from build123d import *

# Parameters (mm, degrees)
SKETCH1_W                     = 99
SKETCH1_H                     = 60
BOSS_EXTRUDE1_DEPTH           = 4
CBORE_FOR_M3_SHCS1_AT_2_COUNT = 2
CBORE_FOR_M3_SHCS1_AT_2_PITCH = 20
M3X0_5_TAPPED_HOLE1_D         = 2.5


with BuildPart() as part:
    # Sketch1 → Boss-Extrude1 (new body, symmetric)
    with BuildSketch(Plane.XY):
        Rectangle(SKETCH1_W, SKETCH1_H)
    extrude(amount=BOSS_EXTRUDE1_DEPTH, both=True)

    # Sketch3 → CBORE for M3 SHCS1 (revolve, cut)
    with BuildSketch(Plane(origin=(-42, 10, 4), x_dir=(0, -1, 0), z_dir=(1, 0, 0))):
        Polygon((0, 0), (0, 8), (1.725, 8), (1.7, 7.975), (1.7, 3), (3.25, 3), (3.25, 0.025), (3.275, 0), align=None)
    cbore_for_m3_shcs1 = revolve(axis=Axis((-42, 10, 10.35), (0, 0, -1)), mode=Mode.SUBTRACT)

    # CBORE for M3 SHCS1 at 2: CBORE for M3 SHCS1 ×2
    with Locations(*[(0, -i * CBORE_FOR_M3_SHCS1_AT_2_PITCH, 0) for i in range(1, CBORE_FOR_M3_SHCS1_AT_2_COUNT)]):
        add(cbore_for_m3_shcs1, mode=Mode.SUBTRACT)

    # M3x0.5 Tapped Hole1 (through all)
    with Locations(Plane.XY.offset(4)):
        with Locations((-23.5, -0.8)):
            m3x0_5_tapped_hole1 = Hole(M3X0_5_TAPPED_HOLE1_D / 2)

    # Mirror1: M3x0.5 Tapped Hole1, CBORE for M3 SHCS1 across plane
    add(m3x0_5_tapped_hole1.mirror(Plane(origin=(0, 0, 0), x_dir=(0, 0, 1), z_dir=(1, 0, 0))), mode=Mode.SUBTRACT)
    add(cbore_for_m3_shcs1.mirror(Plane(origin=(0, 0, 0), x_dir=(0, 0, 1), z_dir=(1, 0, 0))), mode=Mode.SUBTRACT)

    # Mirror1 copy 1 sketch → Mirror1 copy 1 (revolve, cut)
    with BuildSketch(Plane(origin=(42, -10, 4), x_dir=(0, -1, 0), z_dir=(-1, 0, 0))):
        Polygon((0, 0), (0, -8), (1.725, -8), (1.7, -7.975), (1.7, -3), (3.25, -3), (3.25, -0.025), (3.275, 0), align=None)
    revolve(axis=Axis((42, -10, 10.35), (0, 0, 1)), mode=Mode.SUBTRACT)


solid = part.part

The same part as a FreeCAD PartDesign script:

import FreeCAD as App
import Part
import Sketcher
from FreeCAD import Vector
Q = App.Units.Quantity

doc = App.newDocument("Part")
body = doc.addObject("PartDesign::Body", "Body")

# Sketch on XY plane
sketch1 = doc.addObject("Sketcher::SketchObject", "Sketch")
body.addObject(sketch1)
sketch1.AttachmentSupport = (doc.XY_Plane, [""])
sketch1.MapMode = "FlatFace"
sketch1.addGeometry([
    Part.LineSegment(Vector(-49.5, 30, 0), Vector(-49.5, -30, 0)),
    Part.LineSegment(Vector(-49.5, -30, 0), Vector(49.5, -30, 0)),
    Part.LineSegment(Vector(49.5, -30, 0), Vector(49.5, 30, 0)),
    Part.LineSegment(Vector(49.5, 30, 0), Vector(-49.5, 30, 0)),
], False)
sketch1.addConstraint([
    Sketcher.Constraint("Coincident", 0, 2, 1, 1),
    Sketcher.Constraint("Coincident", 1, 2, 2, 1),
    Sketcher.Constraint("Coincident", 2, 2, 3, 1),
    Sketcher.Constraint("Coincident", 3, 2, 0, 1),
    Sketcher.Constraint("Vertical", 0),
    Sketcher.Constraint("Horizontal", 1),
    Sketcher.Constraint("Vertical", 2),
    Sketcher.Constraint("Horizontal", 3),
    Sketcher.Constraint("Symmetric", 0, 2, 2, 2, -1, 1),
    Sketcher.Constraint("DistanceX", 1, 1, 1, 2, 99.0),
    Sketcher.Constraint("DistanceY", 0, 2, 0, 1, 60.0),
])
pad1 = doc.addObject("PartDesign::Pad", "Pad")
body.addObject(pad1)
pad1.Profile = sketch1
pad1.Length = 8
pad1.Midplane = True

# Sketch on YZ plane
sketch2 = doc.addObject("Sketcher::SketchObject", "Sketch001")
body.addObject(sketch2)
sketch2.AttachmentSupport = (doc.YZ_Plane, [""])
sketch2.MapMode = "FlatFace"
sketch2.AttachmentOffset = App.Placement(Vector(0, 0, -42), App.Rotation())
sketch2.addGeometry([
    Part.LineSegment(Vector(10, -4, 0), Vector(10, 4, 0)),  # 0
    Part.LineSegment(Vector(10, 4, 0), Vector(6.725, 4, 0)),  # 1
    Part.LineSegment(Vector(6.725, 4, 0), Vector(6.75, 3.975, 0)),  # 2
    Part.LineSegment(Vector(6.75, 3.975, 0), Vector(6.75, 1, 0)),  # 3
    Part.LineSegment(Vector(6.75, 1, 0), Vector(8.3, 1, 0)),  # 4
    Part.LineSegment(Vector(8.3, 1, 0), Vector(8.3, -3.975, 0)),  # 5
    Part.LineSegment(Vector(8.3, -3.975, 0), Vector(8.275, -4, 0)),  # 6
    Part.LineSegment(Vector(8.275, -4, 0), Vector(10, -4, 0)),  # 7
], False)
sketch2.addGeometry(Part.LineSegment(Vector(10, 4, 0), Vector(10, -4, 0)), True)  # axis
sketch2.addConstraint([
    Sketcher.Constraint("Coincident", 0, 2, 1, 1),
    Sketcher.Constraint("Coincident", 1, 2, 2, 1),
    Sketcher.Constraint("Coincident", 2, 2, 3, 1),
    Sketcher.Constraint("Coincident", 3, 2, 4, 1),
    Sketcher.Constraint("Coincident", 4, 2, 5, 1),
    Sketcher.Constraint("Coincident", 5, 2, 6, 1),
    Sketcher.Constraint("Coincident", 6, 2, 7, 1),
    Sketcher.Constraint("Coincident", 7, 2, 0, 1),
    Sketcher.Constraint("Vertical", 0),
    Sketcher.Constraint("Horizontal", 1),
    Sketcher.Constraint("Vertical", 3),
    Sketcher.Constraint("Horizontal", 4),
    Sketcher.Constraint("Vertical", 5),
    Sketcher.Constraint("Horizontal", 7),
    Sketcher.Constraint("Vertical", 8),
    Sketcher.Constraint("Coincident", 8, 1, 0, 2),
    Sketcher.Constraint("Perpendicular", 2, 6),
    Sketcher.Constraint("Horizontal", 6, 2, 8, 2),
    Sketcher.Constraint("Equal", 2, 6),
    Sketcher.Constraint("DistanceY", 0, 1, 0, 2, 8.0),
    Sketcher.Constraint("Angle", 2, Q("-45 deg")),
    Sketcher.Constraint("DistanceX", -1, 1, 0, 2, 10.0),
    Sketcher.Constraint("DistanceY", -1, 1, 0, 2, 4.0),
    Sketcher.Constraint("DistanceY", -1, 1, 3, 2, 1.0),
    Sketcher.Constraint("DistanceX", 4, 1, 4, 2, 1.55),
    Sketcher.Constraint("DistanceX", -1, 1, 4, 2, 8.3),
    Sketcher.Constraint("DistanceX", 1, 2, 1, 1, 3.275),
])
groove = doc.addObject("PartDesign::Groove", "Groove")
body.addObject(groove)
groove.Profile = sketch2
groove.ReferenceAxis = (sketch2, ["Axis0"])
groove.Angle = 360
doc.recompute()

linearpattern = doc.addObject("PartDesign::LinearPattern", "LinearPattern")
body.addObject(linearpattern)
linearpattern.Originals = [groove]
linearpattern.Direction = (doc.Y_Axis, [""])
linearpattern.Mode = "offset"
linearpattern.Offset = 20
linearpattern.Occurrences = 2
linearpattern.Reversed = True
body.Tip = linearpattern

# Sketch on XY plane
sketch3 = doc.addObject("Sketcher::SketchObject", "Sketch002")
body.addObject(sketch3)
sketch3.AttachmentSupport = (doc.XY_Plane, [""])
sketch3.MapMode = "FlatFace"
sketch3.AttachmentOffset = App.Placement(Vector(0, 0, 4), App.Rotation())
sketch3.addGeometry(Part.Circle(Vector(-23.5, -0.8, 0), Vector(0, 0, 1), 1.25), False)
sketch3.addConstraint([
    Sketcher.Constraint("Diameter", 0, 2.5),
    Sketcher.Constraint("DistanceX", 0, 3, -1, 1, 23.5),
    Sketcher.Constraint("DistanceY", 0, 3, -1, 1, 0.8),
])
doc.recompute()
hole = doc.addObject("PartDesign::Hole", "Hole")
body.addObject(hole)
hole.Profile = sketch3
hole.ThreadType = "None"
hole.Diameter = 2.5
hole.DepthType = "ThroughAll"
doc.recompute()

mirrored = doc.addObject("PartDesign::Mirrored", "Mirrored")
body.addObject(mirrored)
mirrored.Originals = [hole, groove]
mirrored.MirrorPlane = (doc.YZ_Plane, [""])
body.Tip = mirrored

# Sketch on YZ plane
sketch4 = doc.addObject("Sketcher::SketchObject", "Sketch003")
body.addObject(sketch4)
sketch4.AttachmentSupport = (doc.YZ_Plane, [""])
sketch4.MapMode = "FlatFace"
sketch4.AttachmentOffset = App.Placement(Vector(0, 0, 42), App.Rotation())
sketch4.addGeometry([
    Part.LineSegment(Vector(-10, 4, 0), Vector(-10, -4, 0)),  # 0
    Part.LineSegment(Vector(-10, -4, 0), Vector(-11.725, -4, 0)),  # 1
    Part.LineSegment(Vector(-11.725, -4, 0), Vector(-11.7, -3.975, 0)),  # 2
    Part.LineSegment(Vector(-11.7, -3.975, 0), Vector(-11.7, 1, 0)),  # 3
    Part.LineSegment(Vector(-11.7, 1, 0), Vector(-13.25, 1, 0)),  # 4
    Part.LineSegment(Vector(-13.25, 1, 0), Vector(-13.25, 3.975, 0)),  # 5
    Part.LineSegment(Vector(-13.25, 3.975, 0), Vector(-13.275, 4, 0)),  # 6
    Part.LineSegment(Vector(-13.275, 4, 0), Vector(-10, 4, 0)),  # 7
], False)
sketch4.addGeometry(Part.LineSegment(Vector(-10, -4, 0), Vector(-10, 4, 0)), True)  # axis
sketch4.addConstraint([
    Sketcher.Constraint("Coincident", 0, 2, 1, 1),
    Sketcher.Constraint("Coincident", 1, 2, 2, 1),
    Sketcher.Constraint("Coincident", 2, 2, 3, 1),
    Sketcher.Constraint("Coincident", 3, 2, 4, 1),
    Sketcher.Constraint("Coincident", 4, 2, 5, 1),
    Sketcher.Constraint("Coincident", 5, 2, 6, 1),
    Sketcher.Constraint("Coincident", 6, 2, 7, 1),
    Sketcher.Constraint("Coincident", 7, 2, 0, 1),
    Sketcher.Constraint("Vertical", 0),
    Sketcher.Constraint("Horizontal", 1),
    Sketcher.Constraint("Vertical", 3),
    Sketcher.Constraint("Horizontal", 4),
    Sketcher.Constraint("Vertical", 5),
    Sketcher.Constraint("Horizontal", 7),
    Sketcher.Constraint("Vertical", 8),
    Sketcher.Constraint("Coincident", 8, 1, 0, 2),
    Sketcher.Constraint("Perpendicular", 2, 6),
    Sketcher.Constraint("Horizontal", 6, 2, 8, 2),
    Sketcher.Constraint("Equal", 2, 6),
    Sketcher.Constraint("DistanceY", 0, 2, 0, 1, 8.0),
    Sketcher.Constraint("Angle", 2, Q("45 deg")),
    Sketcher.Constraint("DistanceX", 0, 2, -1, 1, 10.0),
    Sketcher.Constraint("DistanceY", 0, 2, -1, 1, 4.0),
    Sketcher.Constraint("DistanceY", -1, 1, 3, 2, 1.0),
    Sketcher.Constraint("DistanceX", 4, 2, 4, 1, 1.55),
    Sketcher.Constraint("DistanceX", 2, 2, -1, 1, 11.7),
    Sketcher.Constraint("DistanceX", 1, 2, 1, 1, 1.725),
])
groove2 = doc.addObject("PartDesign::Groove", "Groove001")
body.addObject(groove2)
groove2.Profile = sketch4
groove2.ReferenceAxis = (sketch4, ["Axis0"])
groove2.Angle = 360

doc.recompute()
